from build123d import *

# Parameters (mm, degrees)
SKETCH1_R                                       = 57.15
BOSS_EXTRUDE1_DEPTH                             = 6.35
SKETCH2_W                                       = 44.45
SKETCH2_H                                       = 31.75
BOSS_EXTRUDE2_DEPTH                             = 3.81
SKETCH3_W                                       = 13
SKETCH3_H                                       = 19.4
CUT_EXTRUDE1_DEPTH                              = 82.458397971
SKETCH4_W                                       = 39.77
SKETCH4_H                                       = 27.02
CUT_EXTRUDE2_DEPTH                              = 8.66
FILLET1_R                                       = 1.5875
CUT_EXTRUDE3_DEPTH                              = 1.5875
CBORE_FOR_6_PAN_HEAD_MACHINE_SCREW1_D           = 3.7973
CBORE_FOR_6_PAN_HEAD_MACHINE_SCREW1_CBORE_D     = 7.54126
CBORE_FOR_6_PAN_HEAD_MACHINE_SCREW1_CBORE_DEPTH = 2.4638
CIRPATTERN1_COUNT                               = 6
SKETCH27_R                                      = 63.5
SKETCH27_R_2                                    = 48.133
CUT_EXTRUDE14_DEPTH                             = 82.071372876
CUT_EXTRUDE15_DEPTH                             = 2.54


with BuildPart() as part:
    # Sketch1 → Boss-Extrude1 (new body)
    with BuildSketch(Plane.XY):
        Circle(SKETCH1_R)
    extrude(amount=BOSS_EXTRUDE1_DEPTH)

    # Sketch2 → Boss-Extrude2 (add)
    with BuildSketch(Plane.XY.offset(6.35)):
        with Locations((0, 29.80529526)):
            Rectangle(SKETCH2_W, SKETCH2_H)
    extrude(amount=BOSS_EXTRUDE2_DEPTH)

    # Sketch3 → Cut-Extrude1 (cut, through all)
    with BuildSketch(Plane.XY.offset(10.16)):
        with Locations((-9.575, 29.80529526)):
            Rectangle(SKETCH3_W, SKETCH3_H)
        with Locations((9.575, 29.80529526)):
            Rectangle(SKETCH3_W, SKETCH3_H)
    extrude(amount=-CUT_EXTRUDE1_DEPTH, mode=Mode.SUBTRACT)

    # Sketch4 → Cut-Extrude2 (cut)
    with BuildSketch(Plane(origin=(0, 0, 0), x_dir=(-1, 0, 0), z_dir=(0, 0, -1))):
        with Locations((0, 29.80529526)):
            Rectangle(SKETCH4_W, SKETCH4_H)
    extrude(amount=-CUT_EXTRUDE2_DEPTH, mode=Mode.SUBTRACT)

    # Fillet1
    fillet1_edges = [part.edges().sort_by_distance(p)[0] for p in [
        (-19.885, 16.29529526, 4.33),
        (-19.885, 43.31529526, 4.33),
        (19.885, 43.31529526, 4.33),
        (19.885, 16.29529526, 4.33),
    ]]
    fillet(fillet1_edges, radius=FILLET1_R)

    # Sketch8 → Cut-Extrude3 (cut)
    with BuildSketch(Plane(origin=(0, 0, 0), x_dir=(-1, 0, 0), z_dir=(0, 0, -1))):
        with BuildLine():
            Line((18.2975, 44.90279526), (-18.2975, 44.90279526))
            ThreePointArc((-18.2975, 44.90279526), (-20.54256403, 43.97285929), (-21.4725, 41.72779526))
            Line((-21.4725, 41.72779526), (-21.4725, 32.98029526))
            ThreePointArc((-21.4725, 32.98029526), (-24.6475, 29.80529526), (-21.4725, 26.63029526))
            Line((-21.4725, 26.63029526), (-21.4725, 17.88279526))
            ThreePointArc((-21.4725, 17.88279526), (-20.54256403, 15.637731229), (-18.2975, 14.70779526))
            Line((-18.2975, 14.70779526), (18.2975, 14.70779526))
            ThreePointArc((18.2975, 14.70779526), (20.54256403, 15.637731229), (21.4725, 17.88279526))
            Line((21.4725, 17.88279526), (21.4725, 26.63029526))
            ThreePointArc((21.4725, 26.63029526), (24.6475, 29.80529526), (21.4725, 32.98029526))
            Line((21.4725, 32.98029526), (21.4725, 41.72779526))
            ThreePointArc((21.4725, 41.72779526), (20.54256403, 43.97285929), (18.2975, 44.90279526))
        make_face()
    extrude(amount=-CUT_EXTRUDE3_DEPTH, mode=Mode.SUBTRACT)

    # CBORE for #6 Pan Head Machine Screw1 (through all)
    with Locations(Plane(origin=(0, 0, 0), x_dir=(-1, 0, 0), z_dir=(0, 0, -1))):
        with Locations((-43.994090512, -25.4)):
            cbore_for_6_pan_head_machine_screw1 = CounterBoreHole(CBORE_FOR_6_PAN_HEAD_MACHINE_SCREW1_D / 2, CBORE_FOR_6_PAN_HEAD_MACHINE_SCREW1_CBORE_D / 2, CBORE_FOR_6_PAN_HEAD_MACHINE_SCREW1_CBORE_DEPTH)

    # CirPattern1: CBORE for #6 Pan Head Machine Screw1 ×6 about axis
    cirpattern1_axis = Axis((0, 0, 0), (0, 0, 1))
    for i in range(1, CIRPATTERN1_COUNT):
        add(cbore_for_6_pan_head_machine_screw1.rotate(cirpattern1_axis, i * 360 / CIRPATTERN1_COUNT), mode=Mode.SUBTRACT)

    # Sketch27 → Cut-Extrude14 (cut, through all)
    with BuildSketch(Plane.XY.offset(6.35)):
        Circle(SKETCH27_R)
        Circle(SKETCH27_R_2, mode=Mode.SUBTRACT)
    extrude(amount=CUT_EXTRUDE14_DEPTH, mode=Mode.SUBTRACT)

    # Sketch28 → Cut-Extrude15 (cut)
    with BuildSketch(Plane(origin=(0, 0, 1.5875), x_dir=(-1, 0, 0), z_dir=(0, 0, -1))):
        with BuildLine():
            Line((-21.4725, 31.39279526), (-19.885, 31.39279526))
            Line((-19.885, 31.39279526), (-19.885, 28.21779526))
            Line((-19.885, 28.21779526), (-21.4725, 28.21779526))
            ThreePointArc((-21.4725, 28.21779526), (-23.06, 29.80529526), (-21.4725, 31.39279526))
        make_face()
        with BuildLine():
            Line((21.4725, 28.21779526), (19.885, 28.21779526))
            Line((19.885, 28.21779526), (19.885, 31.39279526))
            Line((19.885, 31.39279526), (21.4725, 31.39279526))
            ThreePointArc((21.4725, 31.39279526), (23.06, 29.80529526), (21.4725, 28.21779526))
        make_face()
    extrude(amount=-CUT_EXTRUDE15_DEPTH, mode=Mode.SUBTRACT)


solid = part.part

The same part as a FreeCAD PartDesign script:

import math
import FreeCAD as App
import Part
import Sketcher

V = App.Vector
Q = App.Units.Quantity


def edges_at(feature, points):
    """Names of the edges that pass closest to the given points."""
    edges = feature.Shape.Edges
    near = lambda p: min(range(len(edges)), key=lambda i: edges[i].distToShape(Part.Vertex(*p))[0])
    return sorted({f"Edge{near(p) + 1}" for p in points})

doc = App.newDocument("Part")
body = doc.addObject("PartDesign::Body", "Body")

# Sketch on XY plane
sketch1 = body.newObject("Sketcher::SketchObject", "Sketch")
sketch1.AttachmentSupport = (doc.getObject("XY_Plane"), [""])
sketch1.MapMode = "FlatFace"
sketch1.addGeometry(Part.Circle(V(0, 0, 0), V(0, 0, 1), 57.15), False)
sketch1.addConstraint([
    Sketcher.Constraint("Coincident", 0, 3, -1, 1),
    Sketcher.Constraint("Diameter", 0, Q("4.5 in")),
])
pad1 = body.newObject("PartDesign::Pad", "Pad")
pad1.Profile = sketch1
pad1.Length = Q("0.25 in")

# Sketch on XY plane
sketch2 = body.newObject("Sketcher::SketchObject", "Sketch001")
sketch2.AttachmentSupport = (doc.getObject("XY_Plane"), [""])
sketch2.MapMode = "FlatFace"
sketch2.AttachmentOffset = App.Placement(V(0, 0, 0.25 * 25.4), App.Rotation())
sketch2.addGeometry([
    Part.LineSegment(V(-22.225, 45.680295, 0), V(-22.225, 13.930295, 0)),
    Part.LineSegment(V(-22.225, 13.930295, 0), V(22.225, 13.930295, 0)),
    Part.LineSegment(V(22.225, 13.930295, 0), V(22.225, 45.680295, 0)),
    Part.LineSegment(V(22.225, 45.680295, 0), V(-22.225, 45.680295, 0)),
], False)
sketch2.addConstraint([
    Sketcher.Constraint("Coincident", 0, 2, 1, 1),
    Sketcher.Constraint("Coincident", 1, 2, 2, 1),
    Sketcher.Constraint("Coincident", 2, 2, 3, 1),
    Sketcher.Constraint("Coincident", 3, 2, 0, 1),
    Sketcher.Constraint("Vertical", 0),
    Sketcher.Constraint("Horizontal", 1),
    Sketcher.Constraint("Vertical", 2),
    Sketcher.Constraint("Horizontal", 3),
    Sketcher.Constraint("DistanceX", 1, 1, 1, 2, Q("1.75 in")),
    Sketcher.Constraint("DistanceY", 0, 2, 0, 1, Q("1.25 in")),
    Sketcher.Constraint("DistanceX", 0, 2, -1, 1, Q("0.875 in")),
    Sketcher.Constraint("DistanceY", -1, 1, 0, 2, 13.930295),
])
pad2 = body.newObject("PartDesign::Pad", "Pad001")
pad2.Profile = sketch2
pad2.Length = Q("0.15 in")

# Sketch on XY plane
sketch3 = body.newObject("Sketcher::SketchObject", "Sketch002")
sketch3.AttachmentSupport = (doc.getObject("XY_Plane"), [""])
sketch3.MapMode = "FlatFace"
sketch3.AttachmentOffset = App.Placement(V(0, 0, 0.4 * 25.4), App.Rotation())
sketch3.addGeometry([
    Part.LineSegment(V(-16.075, 39.505295, 0), V(-16.075, 20.105295, 0)),  # 0
    Part.LineSegment(V(-16.075, 20.105295, 0), V(-3.075, 20.105295, 0)),  # 1
    Part.LineSegment(V(-3.075, 20.105295, 0), V(-3.075, 39.505295, 0)),  # 2
    Part.LineSegment(V(-3.075, 39.505295, 0), V(-16.075, 39.505295, 0)),  # 3
    Part.LineSegment(V(3.075, 39.505295, 0), V(3.075, 20.105295, 0)),  # 4
    Part.LineSegment(V(3.075, 20.105295, 0), V(16.075, 20.105295, 0)),  # 5
    Part.LineSegment(V(16.075, 20.105295, 0), V(16.075, 39.505295, 0)),  # 6
    Part.LineSegment(V(16.075, 39.505295, 0), V(3.075, 39.505295, 0)),  # 7
], False)
sketch3.addConstraint([
    Sketcher.Constraint("Coincident", 0, 2, 1, 1),
    Sketcher.Constraint("Coincident", 1, 2, 2, 1),
    Sketcher.Constraint("Coincident", 2, 2, 3, 1),
    Sketcher.Constraint("Coincident", 3, 2, 0, 1),
    Sketcher.Constraint("Coincident", 4, 2, 5, 1),
    Sketcher.Constraint("Coincident", 5, 2, 6, 1),
    Sketcher.Constraint("Coincident", 6, 2, 7, 1),
    Sketcher.Constraint("Coincident", 7, 2, 4, 1),
    Sketcher.Constraint("Vertical", 0),
    Sketcher.Constraint("Horizontal", 1),
    Sketcher.Constraint("Vertical", 2),
    Sketcher.Constraint("Horizontal", 3),
    Sketcher.Constraint("Vertical", 4),
    Sketcher.Constraint("Horizontal", 5),
    Sketcher.Constraint("Vertical", 6),
    Sketcher.Constraint("Horizontal", 7),
    Sketcher.Constraint("Symmetric", 1, 2, 4, 2, -2),
    Sketcher.Constraint("Symmetric", 3, 2, 6, 2, -2),
    Sketcher.Constraint("DistanceX", 1, 1, 1, 2, 13.0),
    Sketcher.Constraint("DistanceY", 0, 2, 0, 1, 19.4),
    Sketcher.Constraint("DistanceX", 0, 2, -1, 1, 16.075),
    Sketcher.Constraint("DistanceY", -1, 1, 0, 2, 20.105295),
])
pocket1 = body.newObject("PartDesign::Pocket", "Pocket")
pocket1.Profile = sketch3
pocket1.Type = "ThroughAll"

# Sketch on XY plane
sketch4 = body.newObject("Sketcher::SketchObject", "Sketch003")
sketch4.AttachmentSupport = (doc.getObject("XY_Plane"), [""])
sketch4.MapMode = "FlatFace"
sketch4.addGeometry([
    Part.LineSegment(V(19.885, 43.315295, 0), V(19.885, 16.295295, 0)),
    Part.LineSegment(V(19.885, 16.295295, 0), V(-19.885, 16.295295, 0)),
    Part.LineSegment(V(-19.885, 16.295295, 0), V(-19.885, 43.315295, 0)),
    Part.LineSegment(V(-19.885, 43.315295, 0), V(19.885, 43.315295, 0)),
], False)
sketch4.addConstraint([
    Sketcher.Constraint("Coincident", 0, 2, 1, 1),
    Sketcher.Constraint("Coincident", 1, 2, 2, 1),
    Sketcher.Constraint("Coincident", 2, 2, 3, 1),
    Sketcher.Constraint("Coincident", 3, 2, 0, 1),
    Sketcher.Constraint("Vertical", 0),
    Sketcher.Constraint("Horizontal", 1),
    Sketcher.Constraint("Vertical", 2),
    Sketcher.Constraint("Horizontal", 3),
    Sketcher.Constraint("DistanceX", 1, 2, 1, 1, 39.77),
    Sketcher.Constraint("DistanceY", 0, 2, 0, 1, 27.02),
    Sketcher.Constraint("DistanceX", -1, 1, 0, 2, 19.885),
    Sketcher.Constraint("DistanceY", -1, 1, 0, 2, 16.295295),
])
pocket2 = body.newObject("PartDesign::Pocket", "Pocket001")
pocket2.Profile = sketch4
pocket2.Length = 8.66
pocket2.Reversed = True
doc.recompute()

fillet = body.newObject("PartDesign::Fillet", "Fillet")
fillet.Base = (pocket2, edges_at(pocket2, [
    (-19.885, 16.295, 4.33),
    (-19.885, 43.315, 4.33),
    (19.885, 43.315, 4.33),
    (19.885, 16.295, 4.33),
]))
fillet.Radius = Q("0.0625 in")

# Sketch on XY plane
sketch5 = body.newObject("Sketcher::SketchObject", "Sketch004")
sketch5.AttachmentSupport = (doc.getObject("XY_Plane"), [""])
sketch5.MapMode = "FlatFace"
sketch5.addGeometry([
    Part.LineSegment(V(-18.2975, 44.902795, 0), V(18.2975, 44.902795, 0)),  # 0
    Part.ArcOfCircle(Part.Circle(V(18.2975, 41.727795, 0), V(0, 0, 1), 3.175), math.radians(0), math.radians(90)),  # 1
    Part.LineSegment(V(21.4725, 41.727795, 0), V(21.4725, 32.980295, 0)),  # 2
    Part.ArcOfCircle(Part.Circle(V(21.4725, 29.805295, 0), V(0, 0, 1), 3.175), math.radians(-90), math.radians(90)),  # 3
    Part.LineSegment(V(21.4725, 26.630295, 0), V(21.4725, 17.882795, 0)),  # 4
    Part.ArcOfCircle(Part.Circle(V(18.2975, 17.882795, 0), V(0, 0, 1), 3.175), math.radians(-90), math.radians(0)),  # 5
    Part.LineSegment(V(18.2975, 14.707795, 0), V(-18.2975, 14.707795, 0)),  # 6
    Part.ArcOfCircle(Part.Circle(V(-18.2975, 17.882795, 0), V(0, 0, 1), 3.175), math.radians(180), math.radians(270)),  # 7
    Part.LineSegment(V(-21.4725, 17.882795, 0), V(-21.4725, 26.630295, 0)),  # 8
    Part.ArcOfCircle(Part.Circle(V(-21.4725, 29.805295, 0), V(0, 0, 1), 3.175), math.radians(90), math.radians(270)),  # 9
    Part.LineSegment(V(-21.4725, 32.980295, 0), V(-21.4725, 41.727795, 0)),  # 10
    Part.ArcOfCircle(Part.Circle(V(-18.2975, 41.727795, 0), V(0, 0, 1), 3.175), math.radians(90), math.radians(180)),  # 11
], False)
sketch5.addConstraint([
    Sketcher.Constraint("Tangent", 0, 2, 1, 2),
    Sketcher.Constraint("Tangent", 1, 1, 2, 1),
    Sketcher.Constraint("Coincident", 2, 2, 3, 2),
    Sketcher.Constraint("Coincident", 3, 1, 4, 1),
    Sketcher.Constraint("Tangent", 4, 2, 5, 2),
    Sketcher.Constraint("Tangent", 5, 1, 6, 1),
    Sketcher.Constraint("Tangent", 6, 2, 7, 2),
    Sketcher.Constraint("Tangent", 7, 1, 8, 1),
    Sketcher.Constraint("Coincident", 8, 2, 9, 2),
    Sketcher.Constraint("Coincident", 9, 1, 10, 1),
    Sketcher.Constraint("Tangent", 10, 2, 11, 2),
    Sketcher.Constraint("Tangent", 11, 1, 0, 1),
    Sketcher.Constraint("Horizontal", 0),
    Sketcher.Constraint("Vertical", 2),
    Sketcher.Constraint("Vertical", 4),
    Sketcher.Constraint("Horizontal", 6),
    Sketcher.Constraint("Vertical", 8),
    Sketcher.Constraint("Vertical", 10),
    Sketcher.Constraint("Equal", 1, 3),
    Sketcher.Constraint("Equal", 3, 5),
    Sketcher.Constraint("Equal", 5, 7),
    Sketcher.Constraint("Equal", 7, 9),
    Sketcher.Constraint("Equal", 9, 11),
    Sketcher.Constraint("Symmetric", 3, 3, 9, 3, -2),
    Sketcher.Constraint("Vertical", 1, 3, 5, 3),
    Sketcher.Constraint("Vertical", 7, 3, 11, 3),
    Sketcher.Constraint("Vertical", 3, 3, 1, 1),
    Sketcher.Constraint("Vertical", 9, 3, 7, 1),
    Sketcher.Constraint("Equal", 2, 4),
    Sketcher.Constraint("Radius", 1, Q("0.125 in")),
    Sketcher.Constraint("DistanceX", 0, 1, 0, 2, 36.595),
    Sketcher.Constraint("DistanceY", 2, 2, 2, 1, 8.7475),
    Sketcher.Constraint("DistanceY", -1, 1, 1, 3, 41.727795),
])
pocket3 = body.newObject("PartDesign::Pocket", "Pocket002")
pocket3.Profile = sketch5
pocket3.Length = Q("0.0625 in")
pocket3.Reversed = True

# Sketch on XY plane
sketch6 = body.newObject("Sketcher::SketchObject", "Sketch005")
sketch6.AttachmentSupport = (doc.getObject("XY_Plane"), [""])
sketch6.MapMode = "FlatFace"
sketch6.addGeometry(Part.Circle(V(43.994091, -25.4, 0), V(0, 0, 1), 1.89865), False)
sketch6.addConstraint([
    Sketcher.Constraint("DistanceY", 0, 3, -1, 1, Q("1 in")),
    Sketcher.Constraint("Diameter", 0, Q("0.1495 in")),
    Sketcher.Constraint("DistanceX", -1, 1, 0, 3, 43.994091),
])
doc.recompute()
hole = body.newObject("PartDesign::Hole", "Hole")
hole.Profile = sketch6
hole.ThreadType = "None"
hole.Diameter = Q("0.1495 in")
hole.DepthType = "ThroughAll"
hole.HoleCutType = "Counterbore"
hole.HoleCutDiameter = Q("0.2969 in")
hole.HoleCutDepth = Q("0.097 in")
hole.Reversed = True
doc.recompute()

polarpattern = body.newObject("PartDesign::PolarPattern", "PolarPattern")
polarpattern.Originals = [hole]
polarpattern.Axis = (doc.getObject("Z_Axis"), [""])
polarpattern.Angle = 360
polarpattern.Occurrences = 6
body.Tip = polarpattern

# Sketch on XY plane
sketch7 = body.newObject("Sketcher::SketchObject", "Sketch006")
sketch7.AttachmentSupport = (doc.getObject("XY_Plane"), [""])
sketch7.MapMode = "FlatFace"
sketch7.AttachmentOffset = App.Placement(V(0, 0, 0.25 * 25.4), App.Rotation())
sketch7.addGeometry([
    Part.Circle(V(0, 0, 0), V(0, 0, 1), 63.5),
    Part.Circle(V(0, 0, 0), V(0, 0, 1), 48.133),
], False)
sketch7.addConstraint([
    Sketcher.Constraint("Coincident", 0, 3, -1, 1),
    Sketcher.Constraint("Coincident", 1, 3, -1, 1),
    Sketcher.Constraint("Diameter", 0, Q("5 in")),
    Sketcher.Constraint("Diameter", 1, Q("3.79 in")),
])
pocket4 = body.newObject("PartDesign::Pocket", "Pocket003")
pocket4.Profile = sketch7
pocket4.Type = "ThroughAll"
pocket4.Reversed = True

# Sketch on XY plane
sketch8 = body.newObject("Sketcher::SketchObject", "Sketch007")
sketch8.AttachmentSupport = (doc.getObject("XY_Plane"), [""])
sketch8.MapMode = "FlatFace"
sketch8.AttachmentOffset = App.Placement(V(0, 0, 0.0625 * 25.4), App.Rotation())
sketch8.addGeometry([
    Part.LineSegment(V(19.885, 31.392795, 0), V(21.4725, 31.392795, 0)),  # 0
    Part.ArcOfCircle(Part.Circle(V(21.4725, 29.805295, 0), V(0, 0, 1), 1.5875), math.radians(-90), math.radians(90)),  # 1
    Part.LineSegment(V(21.4725, 28.217795, 0), V(19.885, 28.217795, 0)),  # 2
    Part.LineSegment(V(19.885, 28.217795, 0), V(19.885, 31.392795, 0)),  # 3
    Part.LineSegment(V(-19.885, 28.217795, 0), V(-21.4725, 28.217795, 0)),  # 4
    Part.ArcOfCircle(Part.Circle(V(-21.4725, 29.805295, 0), V(0, 0, 1), 1.5875), math.radians(90), math.radians(270)),  # 5
    Part.LineSegment(V(-21.4725, 31.392795, 0), V(-19.885, 31.392795, 0)),  # 6
    Part.LineSegment(V(-19.885, 31.392795, 0), V(-19.885, 28.217795, 0)),  # 7
], False)
sketch8.addConstraint([
    Sketcher.Constraint("Tangent", 0, 2, 1, 2),
    Sketcher.Constraint("Tangent", 1, 1, 2, 1),
    Sketcher.Constraint("Coincident", 2, 2, 3, 1),
    Sketcher.Constraint("Coincident", 3, 2, 0, 1),
    Sketcher.Constraint("Tangent", 4, 2, 5, 2),
    Sketcher.Constraint("Tangent", 5, 1, 6, 1),
    Sketcher.Constraint("Coincident", 6, 2, 7, 1),
    Sketcher.Constraint("Coincident", 7, 2, 4, 1),
    Sketcher.Constraint("Horizontal", 0),
    Sketcher.Constraint("Horizontal", 2),
    Sketcher.Constraint("Vertical", 3),
    Sketcher.Constraint("Horizontal", 4),
    Sketcher.Constraint("Horizontal", 6),
    Sketcher.Constraint("Vertical", 7),
    Sketcher.Constraint("Equal", 1, 5),
    Sketcher.Constraint("Symmetric", 1, 3, 5, 3, -2),
    Sketcher.Constraint("Equal", 2, 4),
    Sketcher.Constraint("Radius", 1, Q("0.0625 in")),
    Sketcher.Constraint("DistanceX", 0, 1, 0, 2, Q("0.0625 in")),
    Sketcher.Constraint("DistanceX", -1, 1, 1, 3, 21.4725),
    Sketcher.Constraint("DistanceY", -1, 1, 1, 3, 29.805295),
])
pocket5 = body.newObject("PartDesign::Pocket", "Pocket004")
pocket5.Profile = sketch8
pocket5.Length = Q("0.1 in")
pocket5.Reversed = True

doc.recompute()
